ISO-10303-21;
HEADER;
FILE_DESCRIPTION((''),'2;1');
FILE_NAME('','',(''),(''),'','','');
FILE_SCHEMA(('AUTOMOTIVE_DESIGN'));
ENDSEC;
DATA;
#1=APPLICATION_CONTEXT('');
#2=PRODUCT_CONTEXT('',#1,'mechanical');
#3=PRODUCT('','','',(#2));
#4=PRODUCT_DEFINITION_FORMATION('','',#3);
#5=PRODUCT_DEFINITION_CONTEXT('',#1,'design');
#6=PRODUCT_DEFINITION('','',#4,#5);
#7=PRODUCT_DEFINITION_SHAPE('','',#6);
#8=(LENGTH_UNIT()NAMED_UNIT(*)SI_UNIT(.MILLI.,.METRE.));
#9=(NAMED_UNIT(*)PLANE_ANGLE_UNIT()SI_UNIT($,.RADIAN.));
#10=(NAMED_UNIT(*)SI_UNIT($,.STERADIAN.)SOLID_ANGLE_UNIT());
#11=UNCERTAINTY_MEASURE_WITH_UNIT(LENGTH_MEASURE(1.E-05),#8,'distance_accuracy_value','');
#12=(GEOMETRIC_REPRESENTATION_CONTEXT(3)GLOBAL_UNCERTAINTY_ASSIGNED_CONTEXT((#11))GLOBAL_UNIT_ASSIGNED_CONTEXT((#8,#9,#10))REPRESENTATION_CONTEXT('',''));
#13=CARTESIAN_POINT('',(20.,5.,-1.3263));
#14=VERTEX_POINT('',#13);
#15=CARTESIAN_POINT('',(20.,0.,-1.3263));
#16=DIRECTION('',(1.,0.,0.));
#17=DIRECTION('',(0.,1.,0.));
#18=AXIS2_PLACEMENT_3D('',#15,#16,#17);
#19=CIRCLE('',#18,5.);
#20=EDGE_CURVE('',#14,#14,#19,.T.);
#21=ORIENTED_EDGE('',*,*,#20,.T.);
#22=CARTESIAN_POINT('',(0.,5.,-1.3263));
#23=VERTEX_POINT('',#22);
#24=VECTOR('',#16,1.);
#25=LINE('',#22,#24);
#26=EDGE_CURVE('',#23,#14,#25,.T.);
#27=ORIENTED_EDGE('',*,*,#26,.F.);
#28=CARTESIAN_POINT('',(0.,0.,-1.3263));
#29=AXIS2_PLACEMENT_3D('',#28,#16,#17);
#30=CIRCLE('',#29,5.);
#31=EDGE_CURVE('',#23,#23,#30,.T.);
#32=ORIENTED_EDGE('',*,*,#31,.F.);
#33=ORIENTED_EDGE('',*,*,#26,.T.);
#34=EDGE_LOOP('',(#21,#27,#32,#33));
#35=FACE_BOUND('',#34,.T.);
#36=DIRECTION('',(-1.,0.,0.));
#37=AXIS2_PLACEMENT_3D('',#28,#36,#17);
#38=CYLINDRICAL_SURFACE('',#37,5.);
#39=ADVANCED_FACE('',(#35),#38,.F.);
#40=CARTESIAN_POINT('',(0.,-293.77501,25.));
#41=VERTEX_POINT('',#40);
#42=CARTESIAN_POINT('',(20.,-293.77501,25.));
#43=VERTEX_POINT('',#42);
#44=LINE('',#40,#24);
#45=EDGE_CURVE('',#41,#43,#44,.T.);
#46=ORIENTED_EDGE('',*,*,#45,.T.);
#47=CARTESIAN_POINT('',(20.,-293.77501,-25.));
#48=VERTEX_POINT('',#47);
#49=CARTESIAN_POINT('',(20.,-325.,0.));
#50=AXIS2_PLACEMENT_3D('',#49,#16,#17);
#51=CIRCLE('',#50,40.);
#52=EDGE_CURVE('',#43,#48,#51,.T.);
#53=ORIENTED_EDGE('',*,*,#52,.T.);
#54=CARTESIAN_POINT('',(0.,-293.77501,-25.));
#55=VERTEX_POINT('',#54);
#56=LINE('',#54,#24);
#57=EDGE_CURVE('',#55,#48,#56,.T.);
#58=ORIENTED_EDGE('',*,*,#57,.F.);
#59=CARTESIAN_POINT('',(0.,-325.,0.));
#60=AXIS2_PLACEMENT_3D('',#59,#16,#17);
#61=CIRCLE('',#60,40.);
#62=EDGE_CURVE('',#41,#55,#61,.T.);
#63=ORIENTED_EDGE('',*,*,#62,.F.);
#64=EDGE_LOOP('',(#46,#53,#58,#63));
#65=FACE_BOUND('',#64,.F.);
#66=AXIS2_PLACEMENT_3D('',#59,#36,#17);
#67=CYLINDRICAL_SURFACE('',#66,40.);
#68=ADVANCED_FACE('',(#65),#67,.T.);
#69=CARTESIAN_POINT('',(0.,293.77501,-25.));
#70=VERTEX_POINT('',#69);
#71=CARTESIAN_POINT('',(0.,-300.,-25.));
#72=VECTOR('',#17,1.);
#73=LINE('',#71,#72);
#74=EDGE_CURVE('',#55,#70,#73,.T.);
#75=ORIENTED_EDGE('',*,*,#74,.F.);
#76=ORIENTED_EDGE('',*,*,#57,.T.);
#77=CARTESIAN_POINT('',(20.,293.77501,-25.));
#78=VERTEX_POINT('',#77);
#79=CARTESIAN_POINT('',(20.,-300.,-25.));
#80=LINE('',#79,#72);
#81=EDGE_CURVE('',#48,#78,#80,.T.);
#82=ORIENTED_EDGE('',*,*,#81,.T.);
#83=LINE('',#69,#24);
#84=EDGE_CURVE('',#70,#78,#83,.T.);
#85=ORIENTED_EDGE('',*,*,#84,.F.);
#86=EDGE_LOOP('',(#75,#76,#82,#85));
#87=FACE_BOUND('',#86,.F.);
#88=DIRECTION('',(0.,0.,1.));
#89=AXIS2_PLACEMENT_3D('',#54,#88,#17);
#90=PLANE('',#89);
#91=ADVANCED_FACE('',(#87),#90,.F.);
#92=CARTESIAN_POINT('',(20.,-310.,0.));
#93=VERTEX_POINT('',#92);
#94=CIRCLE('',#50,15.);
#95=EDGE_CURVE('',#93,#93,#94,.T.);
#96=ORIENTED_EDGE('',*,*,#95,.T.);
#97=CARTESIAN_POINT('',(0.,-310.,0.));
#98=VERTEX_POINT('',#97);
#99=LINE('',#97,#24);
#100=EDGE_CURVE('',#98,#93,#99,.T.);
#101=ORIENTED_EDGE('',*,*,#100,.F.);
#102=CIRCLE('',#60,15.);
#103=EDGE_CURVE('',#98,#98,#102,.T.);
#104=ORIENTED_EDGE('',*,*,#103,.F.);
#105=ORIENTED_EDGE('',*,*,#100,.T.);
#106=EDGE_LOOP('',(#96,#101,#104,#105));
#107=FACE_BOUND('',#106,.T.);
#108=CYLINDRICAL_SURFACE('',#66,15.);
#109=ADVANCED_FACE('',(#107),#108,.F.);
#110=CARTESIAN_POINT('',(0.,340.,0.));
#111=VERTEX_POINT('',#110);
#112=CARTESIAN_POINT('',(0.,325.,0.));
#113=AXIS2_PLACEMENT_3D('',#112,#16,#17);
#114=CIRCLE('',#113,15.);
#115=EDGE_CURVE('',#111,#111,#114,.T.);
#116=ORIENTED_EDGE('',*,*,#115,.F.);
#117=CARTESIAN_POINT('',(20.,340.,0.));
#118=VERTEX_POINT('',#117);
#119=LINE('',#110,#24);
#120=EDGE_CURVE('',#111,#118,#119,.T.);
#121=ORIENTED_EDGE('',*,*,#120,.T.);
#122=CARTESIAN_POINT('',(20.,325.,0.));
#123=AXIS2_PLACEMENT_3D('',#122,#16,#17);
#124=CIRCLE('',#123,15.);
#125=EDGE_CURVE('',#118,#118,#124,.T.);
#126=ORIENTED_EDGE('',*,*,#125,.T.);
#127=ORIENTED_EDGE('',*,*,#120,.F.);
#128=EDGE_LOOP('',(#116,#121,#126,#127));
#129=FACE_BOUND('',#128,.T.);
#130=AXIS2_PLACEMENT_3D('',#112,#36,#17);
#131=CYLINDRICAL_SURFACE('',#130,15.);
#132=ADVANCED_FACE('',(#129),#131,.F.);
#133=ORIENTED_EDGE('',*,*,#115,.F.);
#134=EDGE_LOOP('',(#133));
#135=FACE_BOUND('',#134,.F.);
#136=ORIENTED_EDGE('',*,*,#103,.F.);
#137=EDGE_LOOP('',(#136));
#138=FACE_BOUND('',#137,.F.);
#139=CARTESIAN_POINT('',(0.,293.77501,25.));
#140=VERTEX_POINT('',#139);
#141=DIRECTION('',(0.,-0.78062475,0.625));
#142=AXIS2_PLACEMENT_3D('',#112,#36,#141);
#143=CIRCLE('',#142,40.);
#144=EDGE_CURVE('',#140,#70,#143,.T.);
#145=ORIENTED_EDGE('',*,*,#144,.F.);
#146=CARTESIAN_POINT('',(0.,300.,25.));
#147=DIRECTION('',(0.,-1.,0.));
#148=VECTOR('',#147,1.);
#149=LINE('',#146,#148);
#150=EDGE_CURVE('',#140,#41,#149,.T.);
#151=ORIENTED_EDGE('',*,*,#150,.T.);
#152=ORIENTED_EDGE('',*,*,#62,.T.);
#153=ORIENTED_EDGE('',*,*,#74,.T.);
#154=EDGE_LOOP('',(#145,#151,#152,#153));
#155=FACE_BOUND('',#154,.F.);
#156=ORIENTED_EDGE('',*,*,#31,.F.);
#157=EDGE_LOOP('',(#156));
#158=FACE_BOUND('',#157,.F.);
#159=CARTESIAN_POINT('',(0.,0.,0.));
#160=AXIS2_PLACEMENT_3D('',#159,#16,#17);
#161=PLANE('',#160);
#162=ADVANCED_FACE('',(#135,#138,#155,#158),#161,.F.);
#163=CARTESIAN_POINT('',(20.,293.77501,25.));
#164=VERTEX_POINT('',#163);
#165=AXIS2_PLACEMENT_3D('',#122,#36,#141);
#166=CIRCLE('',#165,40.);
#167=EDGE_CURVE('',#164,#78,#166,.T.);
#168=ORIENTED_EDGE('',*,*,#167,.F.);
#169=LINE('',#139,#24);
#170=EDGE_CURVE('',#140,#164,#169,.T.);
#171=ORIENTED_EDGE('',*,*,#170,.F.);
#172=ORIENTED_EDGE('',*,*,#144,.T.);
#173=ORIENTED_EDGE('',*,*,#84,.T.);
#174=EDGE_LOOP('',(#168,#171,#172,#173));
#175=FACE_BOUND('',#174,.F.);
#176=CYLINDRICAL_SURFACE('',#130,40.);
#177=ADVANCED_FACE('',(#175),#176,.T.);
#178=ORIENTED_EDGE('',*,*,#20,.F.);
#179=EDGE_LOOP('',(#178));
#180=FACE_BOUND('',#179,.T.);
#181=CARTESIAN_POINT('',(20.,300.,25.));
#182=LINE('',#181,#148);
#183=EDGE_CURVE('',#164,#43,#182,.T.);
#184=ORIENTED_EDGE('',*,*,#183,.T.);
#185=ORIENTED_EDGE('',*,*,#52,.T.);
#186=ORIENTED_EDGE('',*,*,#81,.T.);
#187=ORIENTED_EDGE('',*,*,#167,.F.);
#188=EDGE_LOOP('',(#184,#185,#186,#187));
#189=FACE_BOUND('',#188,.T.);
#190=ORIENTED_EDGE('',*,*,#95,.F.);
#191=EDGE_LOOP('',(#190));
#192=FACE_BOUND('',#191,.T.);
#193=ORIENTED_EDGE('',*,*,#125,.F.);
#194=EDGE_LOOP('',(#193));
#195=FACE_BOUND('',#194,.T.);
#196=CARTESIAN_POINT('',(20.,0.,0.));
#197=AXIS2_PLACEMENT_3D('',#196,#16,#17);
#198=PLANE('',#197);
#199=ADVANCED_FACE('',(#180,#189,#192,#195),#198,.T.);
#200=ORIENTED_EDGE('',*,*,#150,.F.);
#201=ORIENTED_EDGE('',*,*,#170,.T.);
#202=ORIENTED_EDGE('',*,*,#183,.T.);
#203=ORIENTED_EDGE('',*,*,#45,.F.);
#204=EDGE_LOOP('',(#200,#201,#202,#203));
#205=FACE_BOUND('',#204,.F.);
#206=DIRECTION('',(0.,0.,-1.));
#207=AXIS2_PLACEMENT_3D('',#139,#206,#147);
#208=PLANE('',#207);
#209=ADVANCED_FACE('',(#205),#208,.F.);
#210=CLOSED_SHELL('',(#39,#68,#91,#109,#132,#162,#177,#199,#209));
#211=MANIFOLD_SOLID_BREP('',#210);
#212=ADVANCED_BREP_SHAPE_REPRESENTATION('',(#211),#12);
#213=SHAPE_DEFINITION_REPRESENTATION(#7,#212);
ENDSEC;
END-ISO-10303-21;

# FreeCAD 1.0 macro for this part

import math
import FreeCAD as App
import Part
import Sketcher

V = App.Vector
Q = App.Units.Quantity

doc = App.newDocument("Part")
body = doc.addObject("PartDesign::Body", "Body")

# Sketch on YZ plane
sketch1 = doc.addObject("Sketcher::SketchObject", "Sketch")
body.addObject(sketch1)
sketch1.AttachmentSupport = (doc.YZ_Plane, [""])
sketch1.MapMode = "FlatFace"
sketch1.addGeometry([
    Part.LineSegment(V(293.77501, 25, 0), V(-293.77501, 25, 0)),  # 0
    Part.ArcOfCircle(Part.Circle(V(-325, 0, 0), V(0, 0, 1), 40), math.radians(38.682187), math.radians(321.317813)),  # 1
    Part.LineSegment(V(-293.77501, -25, 0), V(293.77501, -25, 0)),  # 2
    Part.ArcOfCircle(Part.Circle(V(325, 0, 0), V(0, 0, 1), 40), math.radians(-141.317813), math.radians(141.317813)),  # 3
    Part.Circle(V(325, 0, 0), V(0, 0, 1), 15),  # 4
    Part.Circle(V(0, -1.3263, 0), V(0, 0, 1), 5),  # 5
    Part.Circle(V(-325, 0, 0), V(0, 0, 1), 15),  # 6
], False)
sketch1.addConstraint([
    Sketcher.Constraint("Coincident", 0, 2, 1, 1),
    Sketcher.Constraint("Coincident", 1, 2, 2, 1),
    Sketcher.Constraint("Coincident", 2, 2, 3, 1),
    Sketcher.Constraint("Coincident", 3, 2, 0, 1),
    Sketcher.Constraint("Horizontal", 0),
    Sketcher.Constraint("Horizontal", 2),
    Sketcher.Constraint("Coincident", 4, 3, 3, 3),
    Sketcher.Constraint("Coincident", 6, 3, 1, 3),
    Sketcher.Constraint("Equal", 1, 3),
    Sketcher.Constraint("Equal", 4, 6),
    Sketcher.Constraint("Symmetric", 1, 3, 3, 3, -1, 1),
    Sketcher.Constraint("Symmetric", 0, 2, 1, 2, -1),
    Sketcher.Constraint("PointOnObject", 5, 3, -2),
    Sketcher.Constraint("Diameter", 4, Q("30 mm")),
    Sketcher.Constraint("Diameter", 5, Q("10 mm")),
    Sketcher.Constraint("Radius", 1, Q("40 mm")),
    Sketcher.Constraint("DistanceY", -1, 1, 0, 2, Q("25 mm")),
    Sketcher.Constraint("DistanceX", 1, 3, -1, 1, Q("325 mm")),
    Sketcher.Constraint("DistanceY", 5, 3, -1, 1, Q("1.3263 mm")),
])
pad1 = doc.addObject("PartDesign::Pad", "Pad")
body.addObject(pad1)
pad1.Profile = sketch1
pad1.Length = 20

doc.recompute()
